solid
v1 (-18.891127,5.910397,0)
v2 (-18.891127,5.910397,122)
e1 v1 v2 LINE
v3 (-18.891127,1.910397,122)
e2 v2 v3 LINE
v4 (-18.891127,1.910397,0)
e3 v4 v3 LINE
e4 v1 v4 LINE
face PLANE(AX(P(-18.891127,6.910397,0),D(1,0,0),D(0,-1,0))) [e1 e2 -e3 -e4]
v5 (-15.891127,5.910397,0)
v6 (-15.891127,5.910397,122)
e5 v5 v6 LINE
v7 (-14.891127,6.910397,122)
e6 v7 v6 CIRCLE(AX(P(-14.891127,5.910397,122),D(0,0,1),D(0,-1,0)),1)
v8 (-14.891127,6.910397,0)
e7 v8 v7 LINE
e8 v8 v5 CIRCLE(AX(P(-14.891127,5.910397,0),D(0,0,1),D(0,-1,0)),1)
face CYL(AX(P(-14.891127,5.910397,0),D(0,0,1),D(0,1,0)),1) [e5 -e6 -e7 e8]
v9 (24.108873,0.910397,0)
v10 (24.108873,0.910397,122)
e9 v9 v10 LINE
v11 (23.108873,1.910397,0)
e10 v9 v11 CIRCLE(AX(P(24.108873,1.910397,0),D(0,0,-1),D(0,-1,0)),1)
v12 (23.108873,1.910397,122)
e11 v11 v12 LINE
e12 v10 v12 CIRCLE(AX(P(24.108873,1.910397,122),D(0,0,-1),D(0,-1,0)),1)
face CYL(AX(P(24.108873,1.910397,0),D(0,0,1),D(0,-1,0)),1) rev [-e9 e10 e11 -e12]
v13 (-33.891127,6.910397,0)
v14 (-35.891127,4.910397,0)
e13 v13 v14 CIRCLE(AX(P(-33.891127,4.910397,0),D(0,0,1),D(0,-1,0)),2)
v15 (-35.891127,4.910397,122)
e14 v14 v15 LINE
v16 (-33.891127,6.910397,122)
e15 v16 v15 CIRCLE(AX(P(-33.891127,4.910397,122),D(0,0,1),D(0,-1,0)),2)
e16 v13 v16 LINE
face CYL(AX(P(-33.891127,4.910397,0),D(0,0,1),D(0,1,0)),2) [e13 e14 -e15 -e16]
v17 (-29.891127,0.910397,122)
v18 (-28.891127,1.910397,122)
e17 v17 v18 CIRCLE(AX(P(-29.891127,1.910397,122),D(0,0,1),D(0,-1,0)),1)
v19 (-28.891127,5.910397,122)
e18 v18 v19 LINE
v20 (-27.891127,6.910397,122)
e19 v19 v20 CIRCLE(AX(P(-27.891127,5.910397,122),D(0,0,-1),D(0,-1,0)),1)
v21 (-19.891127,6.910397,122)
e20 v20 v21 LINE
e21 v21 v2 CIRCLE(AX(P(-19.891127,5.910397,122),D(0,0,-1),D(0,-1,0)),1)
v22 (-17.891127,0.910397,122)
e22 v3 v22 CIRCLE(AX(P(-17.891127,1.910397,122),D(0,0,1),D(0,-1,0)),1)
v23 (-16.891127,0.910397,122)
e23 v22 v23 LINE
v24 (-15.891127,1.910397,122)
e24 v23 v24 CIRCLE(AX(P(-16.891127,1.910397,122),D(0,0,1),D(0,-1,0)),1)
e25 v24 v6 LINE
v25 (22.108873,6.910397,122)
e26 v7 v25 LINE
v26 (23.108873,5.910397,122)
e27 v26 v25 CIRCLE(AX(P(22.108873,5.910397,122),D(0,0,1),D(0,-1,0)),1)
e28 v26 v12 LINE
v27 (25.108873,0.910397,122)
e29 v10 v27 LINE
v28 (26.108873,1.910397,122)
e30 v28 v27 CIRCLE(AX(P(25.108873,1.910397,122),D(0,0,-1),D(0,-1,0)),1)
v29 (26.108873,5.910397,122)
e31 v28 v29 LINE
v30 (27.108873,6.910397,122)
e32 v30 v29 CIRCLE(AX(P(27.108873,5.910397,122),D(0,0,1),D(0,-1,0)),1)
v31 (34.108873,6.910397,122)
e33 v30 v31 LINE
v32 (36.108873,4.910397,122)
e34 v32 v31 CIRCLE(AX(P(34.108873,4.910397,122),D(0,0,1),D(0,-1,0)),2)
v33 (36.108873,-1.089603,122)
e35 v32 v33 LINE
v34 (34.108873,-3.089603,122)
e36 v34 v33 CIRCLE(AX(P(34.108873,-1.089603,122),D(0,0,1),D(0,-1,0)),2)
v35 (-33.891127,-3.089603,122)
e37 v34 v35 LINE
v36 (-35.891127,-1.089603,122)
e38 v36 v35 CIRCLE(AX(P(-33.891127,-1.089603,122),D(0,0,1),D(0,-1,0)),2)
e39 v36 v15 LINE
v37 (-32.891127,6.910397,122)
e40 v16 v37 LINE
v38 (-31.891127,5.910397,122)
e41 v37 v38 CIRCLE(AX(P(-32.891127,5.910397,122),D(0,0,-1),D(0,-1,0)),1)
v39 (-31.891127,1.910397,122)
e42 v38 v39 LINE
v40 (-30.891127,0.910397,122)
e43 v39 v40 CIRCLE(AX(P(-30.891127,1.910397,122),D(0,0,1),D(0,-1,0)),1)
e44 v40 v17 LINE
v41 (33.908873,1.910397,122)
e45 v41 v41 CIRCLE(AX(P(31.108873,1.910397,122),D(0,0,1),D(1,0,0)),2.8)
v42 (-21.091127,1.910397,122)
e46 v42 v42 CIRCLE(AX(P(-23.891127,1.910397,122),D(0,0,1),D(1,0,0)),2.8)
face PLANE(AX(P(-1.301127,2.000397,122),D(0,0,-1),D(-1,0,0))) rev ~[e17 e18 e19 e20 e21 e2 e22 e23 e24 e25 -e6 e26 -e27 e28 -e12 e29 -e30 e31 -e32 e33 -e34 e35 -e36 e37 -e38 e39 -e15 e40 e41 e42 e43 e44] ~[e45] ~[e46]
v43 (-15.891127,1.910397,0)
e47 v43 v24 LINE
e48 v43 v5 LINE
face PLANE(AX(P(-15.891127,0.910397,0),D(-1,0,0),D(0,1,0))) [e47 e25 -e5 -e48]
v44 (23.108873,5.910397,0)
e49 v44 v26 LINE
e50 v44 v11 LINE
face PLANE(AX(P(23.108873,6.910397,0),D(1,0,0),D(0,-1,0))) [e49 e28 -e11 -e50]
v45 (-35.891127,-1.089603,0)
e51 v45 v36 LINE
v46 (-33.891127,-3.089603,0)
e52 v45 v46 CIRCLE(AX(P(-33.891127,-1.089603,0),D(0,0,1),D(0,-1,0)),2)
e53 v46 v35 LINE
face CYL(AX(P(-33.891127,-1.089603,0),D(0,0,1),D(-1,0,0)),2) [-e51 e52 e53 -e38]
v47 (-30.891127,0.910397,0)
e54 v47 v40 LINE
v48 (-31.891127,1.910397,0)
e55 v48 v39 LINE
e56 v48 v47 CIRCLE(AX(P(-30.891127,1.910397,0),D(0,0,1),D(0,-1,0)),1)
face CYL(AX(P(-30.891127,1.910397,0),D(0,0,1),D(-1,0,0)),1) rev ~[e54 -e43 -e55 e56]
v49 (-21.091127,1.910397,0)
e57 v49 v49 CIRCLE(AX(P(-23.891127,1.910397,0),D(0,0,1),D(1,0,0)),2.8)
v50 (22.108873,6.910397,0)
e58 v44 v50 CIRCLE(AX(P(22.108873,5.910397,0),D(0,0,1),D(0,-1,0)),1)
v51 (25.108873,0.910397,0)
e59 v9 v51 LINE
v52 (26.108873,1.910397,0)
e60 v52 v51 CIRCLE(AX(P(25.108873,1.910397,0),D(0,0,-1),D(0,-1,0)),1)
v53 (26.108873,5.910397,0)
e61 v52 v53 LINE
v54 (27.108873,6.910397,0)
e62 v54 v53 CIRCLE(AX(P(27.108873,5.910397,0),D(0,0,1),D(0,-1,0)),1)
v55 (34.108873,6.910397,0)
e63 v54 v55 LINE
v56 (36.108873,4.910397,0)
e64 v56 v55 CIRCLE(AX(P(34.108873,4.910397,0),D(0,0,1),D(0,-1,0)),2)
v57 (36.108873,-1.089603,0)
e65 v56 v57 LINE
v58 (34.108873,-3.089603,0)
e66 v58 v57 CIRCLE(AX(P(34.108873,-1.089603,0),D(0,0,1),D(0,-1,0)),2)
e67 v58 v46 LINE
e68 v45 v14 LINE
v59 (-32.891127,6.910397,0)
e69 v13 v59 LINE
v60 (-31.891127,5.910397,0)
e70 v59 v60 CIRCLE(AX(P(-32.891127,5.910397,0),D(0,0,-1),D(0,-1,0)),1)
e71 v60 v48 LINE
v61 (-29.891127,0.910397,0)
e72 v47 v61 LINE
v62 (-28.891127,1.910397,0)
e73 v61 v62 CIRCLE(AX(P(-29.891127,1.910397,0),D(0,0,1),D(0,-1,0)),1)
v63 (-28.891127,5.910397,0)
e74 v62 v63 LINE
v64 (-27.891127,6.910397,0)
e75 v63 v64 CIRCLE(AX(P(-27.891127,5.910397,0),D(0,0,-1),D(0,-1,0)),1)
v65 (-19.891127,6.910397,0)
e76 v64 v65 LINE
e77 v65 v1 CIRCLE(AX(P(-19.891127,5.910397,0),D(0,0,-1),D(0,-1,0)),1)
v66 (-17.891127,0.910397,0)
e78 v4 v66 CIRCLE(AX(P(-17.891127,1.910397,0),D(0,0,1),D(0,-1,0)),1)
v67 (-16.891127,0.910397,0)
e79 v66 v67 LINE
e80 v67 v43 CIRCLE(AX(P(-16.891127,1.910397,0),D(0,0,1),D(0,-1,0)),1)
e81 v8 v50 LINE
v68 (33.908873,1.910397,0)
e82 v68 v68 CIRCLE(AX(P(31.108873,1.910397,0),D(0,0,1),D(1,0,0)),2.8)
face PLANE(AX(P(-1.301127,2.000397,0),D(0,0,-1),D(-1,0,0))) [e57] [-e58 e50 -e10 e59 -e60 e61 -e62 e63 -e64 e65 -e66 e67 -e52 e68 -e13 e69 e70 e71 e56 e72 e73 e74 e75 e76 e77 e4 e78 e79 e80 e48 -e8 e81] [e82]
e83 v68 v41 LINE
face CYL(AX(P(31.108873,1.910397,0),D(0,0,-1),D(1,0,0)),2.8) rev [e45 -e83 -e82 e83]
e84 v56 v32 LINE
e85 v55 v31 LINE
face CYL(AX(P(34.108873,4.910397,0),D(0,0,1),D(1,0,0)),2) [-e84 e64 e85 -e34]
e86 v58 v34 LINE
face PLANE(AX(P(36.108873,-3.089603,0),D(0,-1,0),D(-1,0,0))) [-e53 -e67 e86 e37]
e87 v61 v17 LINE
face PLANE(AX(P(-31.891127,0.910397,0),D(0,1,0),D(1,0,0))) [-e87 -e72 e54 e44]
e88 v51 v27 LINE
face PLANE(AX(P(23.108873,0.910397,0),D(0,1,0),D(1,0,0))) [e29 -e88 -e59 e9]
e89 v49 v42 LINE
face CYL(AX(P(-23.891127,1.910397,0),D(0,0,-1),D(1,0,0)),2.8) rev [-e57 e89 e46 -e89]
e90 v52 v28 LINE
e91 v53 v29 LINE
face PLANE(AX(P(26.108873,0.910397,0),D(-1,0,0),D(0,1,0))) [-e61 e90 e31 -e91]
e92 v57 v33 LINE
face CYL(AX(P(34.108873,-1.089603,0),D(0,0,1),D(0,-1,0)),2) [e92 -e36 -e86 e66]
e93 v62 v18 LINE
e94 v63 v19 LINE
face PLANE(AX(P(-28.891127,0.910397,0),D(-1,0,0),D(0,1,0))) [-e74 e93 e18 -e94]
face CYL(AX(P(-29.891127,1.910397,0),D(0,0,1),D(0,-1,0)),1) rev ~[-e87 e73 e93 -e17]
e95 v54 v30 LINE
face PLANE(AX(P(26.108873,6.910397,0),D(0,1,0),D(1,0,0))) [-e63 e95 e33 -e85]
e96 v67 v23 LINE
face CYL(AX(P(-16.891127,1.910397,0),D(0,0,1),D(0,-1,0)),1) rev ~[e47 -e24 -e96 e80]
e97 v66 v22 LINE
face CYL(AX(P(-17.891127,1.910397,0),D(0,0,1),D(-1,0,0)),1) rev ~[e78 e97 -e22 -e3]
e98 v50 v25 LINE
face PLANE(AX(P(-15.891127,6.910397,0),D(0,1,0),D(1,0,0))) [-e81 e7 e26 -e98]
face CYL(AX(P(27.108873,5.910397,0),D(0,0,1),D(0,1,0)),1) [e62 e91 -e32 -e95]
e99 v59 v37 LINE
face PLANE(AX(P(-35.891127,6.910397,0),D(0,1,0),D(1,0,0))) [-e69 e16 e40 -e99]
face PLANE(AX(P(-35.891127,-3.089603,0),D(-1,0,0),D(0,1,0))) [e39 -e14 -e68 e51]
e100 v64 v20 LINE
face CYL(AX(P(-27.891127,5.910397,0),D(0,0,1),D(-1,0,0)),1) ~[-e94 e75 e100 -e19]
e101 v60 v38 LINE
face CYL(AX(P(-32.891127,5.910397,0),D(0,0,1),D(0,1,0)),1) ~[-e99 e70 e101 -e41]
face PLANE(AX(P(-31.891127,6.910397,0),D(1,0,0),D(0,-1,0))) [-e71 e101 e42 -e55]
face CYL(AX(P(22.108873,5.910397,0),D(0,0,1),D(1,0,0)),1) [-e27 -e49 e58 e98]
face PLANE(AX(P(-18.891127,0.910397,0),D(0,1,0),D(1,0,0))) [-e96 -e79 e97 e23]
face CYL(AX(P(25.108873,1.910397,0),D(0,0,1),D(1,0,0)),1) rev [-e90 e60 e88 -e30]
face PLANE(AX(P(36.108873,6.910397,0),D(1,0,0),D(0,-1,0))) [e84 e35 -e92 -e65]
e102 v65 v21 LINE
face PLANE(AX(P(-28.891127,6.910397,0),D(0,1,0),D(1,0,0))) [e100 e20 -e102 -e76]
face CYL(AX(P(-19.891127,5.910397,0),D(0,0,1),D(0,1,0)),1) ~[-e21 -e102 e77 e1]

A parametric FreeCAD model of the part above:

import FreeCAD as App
import Part
import Sketcher
Q = App.Units.Quantity


def edges_at(feature, points):
    """Names of the edges that pass closest to the given points."""
    edges = feature.Shape.Edges
    near = lambda p: min(range(len(edges)), key=lambda i: edges[i].distToShape(Part.Vertex(*p))[0])
    return sorted({f"Edge{near(p) + 1}" for p in points})

doc = App.newDocument("Part")
params = doc.addObject("Spreadsheet::Sheet", "Params")
for row, (alias, value) in enumerate([
    ("sketch1_diameter", "5.6 mm"),
    ("sketch1_width", "72 mm"),
    ("sketch1_width2", "10 mm"),
    ("sketch1_width3", "3 mm"),
    ("sketch1_width4", "39 mm"),
    ("pad1_length", "122 mm"),
    ("fillet_radius", "1 mm"),
    ("fillet2_radius", "2 mm"),
], start=1):
    params.set(f"A{row}", alias)
    params.set(f"B{row}", "=" + value)
    params.setAlias(f"B{row}", alias)

body = doc.addObject("PartDesign::Body", "Body")

# Sketch on XY plane
sketch1 = body.newObject("Sketcher::SketchObject", "Sketch")
sketch1.AttachmentSupport = (doc.getObject("XY_Plane"), [""])
sketch1.MapMode = "FlatFace"
sketch1.addGeometry(Part.LineSegment(App.Vector(-35.9, 6.9, 0), App.Vector(-35.9, -3.1, 0)), False)
sketch1.addGeometry(Part.LineSegment(App.Vector(-35.9, -3.1, 0), App.Vector(36.1, -3.1, 0)), False)
sketch1.addGeometry(Part.LineSegment(App.Vector(36.1, -3.1, 0), App.Vector(36.1, 6.9, 0)), False)
sketch1.addGeometry(Part.LineSegment(App.Vector(36.1, 6.9, 0), App.Vector(26.1, 6.9, 0)), False)
sketch1.addGeometry(Part.LineSegment(App.Vector(26.1, 6.9, 0), App.Vector(26.1, 0.9, 0)), False)
sketch1.addGeometry(Part.LineSegment(App.Vector(26.1, 0.9, 0), App.Vector(23.1, 0.9, 0)), False)
sketch1.addGeometry(Part.LineSegment(App.Vector(23.1, 0.9, 0), App.Vector(23.1, 6.9, 0)), False)
sketch1.addGeometry(Part.LineSegment(App.Vector(23.1, 6.9, 0), App.Vector(-15.9, 6.9, 0)), False)
sketch1.addGeometry(Part.LineSegment(App.Vector(-15.9, 6.9, 0), App.Vector(-15.9, 0.9, 0)), False)
sketch1.addGeometry(Part.LineSegment(App.Vector(-15.9, 0.9, 0), App.Vector(-18.9, 0.9, 0)), False)
sketch1.addGeometry(Part.LineSegment(App.Vector(-18.9, 0.9, 0), App.Vector(-18.9, 6.9, 0)), False)
sketch1.addGeometry(Part.LineSegment(App.Vector(-18.9, 6.9, 0), App.Vector(-28.9, 6.9, 0)), False)
sketch1.addGeometry(Part.LineSegment(App.Vector(-28.9, 6.9, 0), App.Vector(-28.9, 0.9, 0)), False)
sketch1.addGeometry(Part.LineSegment(App.Vector(-28.9, 0.9, 0), App.Vector(-31.9, 0.9, 0)), False)
sketch1.addGeometry(Part.LineSegment(App.Vector(-31.9, 0.9, 0), App.Vector(-31.9, 6.9, 0)), False)
sketch1.addGeometry(Part.LineSegment(App.Vector(-31.9, 6.9, 0), App.Vector(-35.9, 6.9, 0)), False)
sketch1.addGeometry(Part.Circle(App.Vector(31.1, 1.9, 0), App.Vector(0, 0, 1), 2.8), False)
sketch1.addGeometry(Part.Circle(App.Vector(-23.9, 1.9, 0), App.Vector(0, 0, 1), 2.8), False)
sketch1.addConstraint(Sketcher.Constraint("Coincident", 0, 2, 1, 1))
sketch1.addConstraint(Sketcher.Constraint("Coincident", 1, 2, 2, 1))
sketch1.addConstraint(Sketcher.Constraint("Coincident", 2, 2, 3, 1))
sketch1.addConstraint(Sketcher.Constraint("Coincident", 3, 2, 4, 1))
sketch1.addConstraint(Sketcher.Constraint("Coincident", 4, 2, 5, 1))
sketch1.addConstraint(Sketcher.Constraint("Coincident", 5, 2, 6, 1))
sketch1.addConstraint(Sketcher.Constraint("Coincident", 6, 2, 7, 1))
sketch1.addConstraint(Sketcher.Constraint("Coincident", 7, 2, 8, 1))
sketch1.addConstraint(Sketcher.Constraint("Coincident", 8, 2, 9, 1))
sketch1.addConstraint(Sketcher.Constraint("Coincident", 9, 2, 10, 1))
sketch1.addConstraint(Sketcher.Constraint("Coincident", 10, 2, 11, 1))
sketch1.addConstraint(Sketcher.Constraint("Coincident", 11, 2, 12, 1))
sketch1.addConstraint(Sketcher.Constraint("Coincident", 12, 2, 13, 1))
sketch1.addConstraint(Sketcher.Constraint("Coincident", 13, 2, 14, 1))
sketch1.addConstraint(Sketcher.Constraint("Coincident", 14, 2, 15, 1))
sketch1.addConstraint(Sketcher.Constraint("Coincident", 15, 2, 0, 1))
sketch1.addConstraint(Sketcher.Constraint("Vertical", 0))
sketch1.addConstraint(Sketcher.Constraint("Horizontal", 1))
sketch1.addConstraint(Sketcher.Constraint("Vertical", 2))
sketch1.addConstraint(Sketcher.Constraint("Horizontal", 3))
sketch1.addConstraint(Sketcher.Constraint("Vertical", 4))
sketch1.addConstraint(Sketcher.Constraint("Horizontal", 5))
sketch1.addConstraint(Sketcher.Constraint("Vertical", 6))
sketch1.addConstraint(Sketcher.Constraint("Horizontal", 7))
sketch1.addConstraint(Sketcher.Constraint("Vertical", 8))
sketch1.addConstraint(Sketcher.Constraint("Horizontal", 9))
sketch1.addConstraint(Sketcher.Constraint("Vertical", 10))
sketch1.addConstraint(Sketcher.Constraint("Horizontal", 11))
sketch1.addConstraint(Sketcher.Constraint("Vertical", 12))
sketch1.addConstraint(Sketcher.Constraint("Horizontal", 13))
sketch1.addConstraint(Sketcher.Constraint("Vertical", 14))
sketch1.addConstraint(Sketcher.Constraint("Horizontal", 15))
sketch1.addConstraint(Sketcher.Constraint("Equal", 16, 17))
sketch1.addConstraint(Sketcher.Constraint("Horizontal", 16, 3, 17, 3))
sketch1.addConstraint(Sketcher.Constraint("Horizontal", 3, 2, 6, 2))
sketch1.addConstraint(Sketcher.Constraint("Horizontal", 5, 2, 8, 2))
sketch1.addConstraint(Sketcher.Constraint("Horizontal", 7, 2, 10, 2))
sketch1.addConstraint(Sketcher.Constraint("Horizontal", 9, 2, 12, 2))
sketch1.addConstraint(Sketcher.Constraint("Horizontal", 11, 2, 14, 2))
sketch1.addConstraint(Sketcher.Constraint("Equal", 5, 9))
sketch1.addConstraint(Sketcher.Constraint("Equal", 3, 11))
sketch1.addConstraint(Sketcher.Constraint("Equal", 9, 13))
sketch1.addConstraint(Sketcher.Constraint("Equal", 11, 0))
sketch1.addConstraint(Sketcher.Constraint("Diameter", 16, Q("5.6 mm")))
sketch1.addConstraint(Sketcher.Constraint("DistanceX", 1, 1, 1, 2, Q("72 mm")))
sketch1.addConstraint(Sketcher.Constraint("DistanceX", 3, 2, 3, 1, Q("10 mm")))
sketch1.addConstraint(Sketcher.Constraint("DistanceX", 5, 2, 5, 1, Q("3 mm")))
sketch1.addConstraint(Sketcher.Constraint("DistanceX", 7, 2, 7, 1, Q("39 mm")))
sketch1.addConstraint(Sketcher.Constraint("DistanceY", 4, 2, 4, 1, Q("6 mm")))
sketch1.addConstraint(Sketcher.Constraint("DistanceX", 17, 3, 16, 3, Q("55 mm")))
sketch1.addConstraint(Sketcher.Constraint("DistanceX", 0, 2, 17, 3, Q("12 mm")))
sketch1.addConstraint(Sketcher.Constraint("DistanceY", 0, 2, 17, 3, Q("5 mm")))
sketch1.addConstraint(Sketcher.Constraint("DistanceX", -1, 1, 16, 3, Q("31.108873 mm")))
sketch1.addConstraint(Sketcher.Constraint("DistanceY", -1, 1, 16, 3, Q("1.910397 mm")))
sketch1.setExpression("Constraints[43]", "Params.sketch1_diameter")
sketch1.setExpression("Constraints[44]", "Params.sketch1_width")
sketch1.setExpression("Constraints[45]", "Params.sketch1_width2")
sketch1.setExpression("Constraints[46]", "Params.sketch1_width3")
sketch1.setExpression("Constraints[47]", "Params.sketch1_width4")
pad1 = body.newObject("PartDesign::Pad", "Pad")
pad1.Profile = sketch1
pad1.setExpression("Length", "Params.pad1_length")
doc.recompute()

fillet = body.newObject("PartDesign::Fillet", "Fillet")
fillet.Base = (pad1, edges_at(pad1, [
    (-31.891, 0.91, 61),
    (-31.891, 6.91, 61),
    (26.109, 6.91, 61),
    (26.109, 0.91, 61),
    (23.109, 0.91, 61),
    (23.109, 6.91, 61),
    (-15.891, 6.91, 61),
    (-15.891, 0.91, 61),
    (-18.891, 0.91, 61),
    (-18.891, 6.91, 61),
    (-28.891, 6.91, 61),
    (-28.891, 0.91, 61),
]))
fillet.setExpression("Radius", "Params.fillet_radius")
doc.recompute()

fillet2 = body.newObject("PartDesign::Fillet", "Fillet001")
fillet2.Base = (fillet, edges_at(fillet, [
    (-35.891, 6.91, 61),
    (-35.891, -3.09, 61),
    (36.109, -3.09, 61),
    (36.109, 6.91, 61),
]))
fillet2.setExpression("Radius", "Params.fillet2_radius")

doc.recompute()
